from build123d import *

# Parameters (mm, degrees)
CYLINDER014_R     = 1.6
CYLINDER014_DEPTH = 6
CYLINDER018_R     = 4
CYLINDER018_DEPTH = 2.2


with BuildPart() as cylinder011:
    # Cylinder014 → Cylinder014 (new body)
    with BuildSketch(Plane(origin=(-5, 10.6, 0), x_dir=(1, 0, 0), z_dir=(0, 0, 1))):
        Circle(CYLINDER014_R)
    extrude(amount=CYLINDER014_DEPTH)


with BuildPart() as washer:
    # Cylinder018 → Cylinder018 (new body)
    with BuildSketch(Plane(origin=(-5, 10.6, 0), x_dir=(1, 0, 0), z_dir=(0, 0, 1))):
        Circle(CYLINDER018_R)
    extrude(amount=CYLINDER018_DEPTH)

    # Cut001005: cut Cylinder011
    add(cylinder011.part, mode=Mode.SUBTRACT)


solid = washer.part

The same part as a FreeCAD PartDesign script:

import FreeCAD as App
import Part
import Sketcher
from FreeCAD import Vector

doc = App.newDocument("Part")
body = doc.addObject("PartDesign::Body", "Body")

sketch1 = body.newObject("Sketcher::SketchObject", "Sketch")
sketch1.AttachmentSupport = (doc.getObject("XY_Plane"), [""])
sketch1.MapMode = "FlatFace"
sketch1.addGeometry(Part.Circle(Vector(-5, 10.6, 0), Vector(0, 0, 1), 1.6), False)
sketch1.addConstraint([
    Sketcher.Constraint("Diameter", 0, 3.2),
    Sketcher.Constraint("DistanceX", 0, 3, -1, 1, 5.0),
    Sketcher.Constraint("DistanceY", -1, 1, 0, 3, 10.6),
])
pad1 = body.newObject("PartDesign::Pad", "Pad")
pad1.Profile = sketch1
pad1.Length = 6
body2 = doc.addObject("PartDesign::Body", "Body001")

sketch2 = body2.newObject("Sketcher::SketchObject", "Sketch001")
sketch2.AttachmentSupport = (doc.getObject("XY_Plane001"), [""])
sketch2.MapMode = "FlatFace"
sketch2.addGeometry(Part.Circle(Vector(-5, 10.6, 0), Vector(0, 0, 1), 4), False)
sketch2.addConstraint([
    Sketcher.Constraint("Diameter", 0, 8.0),
    Sketcher.Constraint("DistanceX", 0, 3, -1, 1, 5.0),
    Sketcher.Constraint("DistanceY", -1, 1, 0, 3, 10.6),
])
pad2 = body2.newObject("PartDesign::Pad", "Pad001")
pad2.Profile = sketch2
pad2.Length = 2.2
doc.recompute()

boolean = body2.newObject("PartDesign::Boolean", "Boolean")
boolean.Type = "Cut"
boolean.addObjects([body])

doc.recompute()
